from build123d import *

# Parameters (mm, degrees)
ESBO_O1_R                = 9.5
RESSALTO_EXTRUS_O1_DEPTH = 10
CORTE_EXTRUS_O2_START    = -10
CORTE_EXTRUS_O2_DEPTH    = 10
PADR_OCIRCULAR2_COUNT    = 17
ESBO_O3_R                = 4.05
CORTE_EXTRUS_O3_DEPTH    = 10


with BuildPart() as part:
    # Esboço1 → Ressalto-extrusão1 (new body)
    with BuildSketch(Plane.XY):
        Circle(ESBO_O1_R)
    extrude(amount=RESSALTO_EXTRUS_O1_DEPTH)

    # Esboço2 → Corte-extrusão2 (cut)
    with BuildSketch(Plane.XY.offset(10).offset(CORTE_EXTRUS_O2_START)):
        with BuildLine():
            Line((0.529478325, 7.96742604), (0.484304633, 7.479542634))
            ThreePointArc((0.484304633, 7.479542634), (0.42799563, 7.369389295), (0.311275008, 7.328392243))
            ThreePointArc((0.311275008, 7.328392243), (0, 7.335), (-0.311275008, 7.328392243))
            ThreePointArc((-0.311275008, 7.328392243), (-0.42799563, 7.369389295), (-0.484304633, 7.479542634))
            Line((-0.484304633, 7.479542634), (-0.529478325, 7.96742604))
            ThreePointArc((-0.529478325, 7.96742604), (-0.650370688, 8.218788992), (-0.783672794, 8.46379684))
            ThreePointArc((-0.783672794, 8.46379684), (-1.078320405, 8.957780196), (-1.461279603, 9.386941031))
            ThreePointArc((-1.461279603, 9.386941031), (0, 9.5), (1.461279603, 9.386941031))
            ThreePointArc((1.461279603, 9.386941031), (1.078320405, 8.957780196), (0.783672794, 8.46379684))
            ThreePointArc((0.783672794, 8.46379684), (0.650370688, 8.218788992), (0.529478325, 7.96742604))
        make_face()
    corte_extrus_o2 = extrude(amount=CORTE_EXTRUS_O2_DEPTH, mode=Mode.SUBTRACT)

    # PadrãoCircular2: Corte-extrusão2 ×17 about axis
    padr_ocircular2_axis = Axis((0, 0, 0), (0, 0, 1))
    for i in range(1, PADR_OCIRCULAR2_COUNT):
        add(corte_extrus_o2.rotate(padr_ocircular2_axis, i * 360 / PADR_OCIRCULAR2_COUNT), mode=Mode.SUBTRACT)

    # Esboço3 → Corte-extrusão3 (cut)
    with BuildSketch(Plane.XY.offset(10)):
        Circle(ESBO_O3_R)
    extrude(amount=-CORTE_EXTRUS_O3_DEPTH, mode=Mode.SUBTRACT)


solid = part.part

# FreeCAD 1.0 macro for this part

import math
import FreeCAD as App
import Part
import Sketcher

doc = App.newDocument("Part")
body = doc.addObject("PartDesign::Body", "Body")

sketch1 = body.newObject("Sketcher::SketchObject", "Sketch")
sketch1.AttachmentSupport = (doc.getObject("XY_Plane"), [""])
sketch1.MapMode = "FlatFace"
sketch1.addGeometry(Part.Circle(App.Vector(0, 0, 0), App.Vector(0, 0, 1), 10), False)
sketch1.addConstraint(Sketcher.Constraint("Coincident", 0, 3, -1, 1))
sketch1.addConstraint(Sketcher.Constraint("Diameter", 0, 19.0))
pad1 = body.newObject("PartDesign::Pad", "Pad")
pad1.Profile = sketch1
pad1.Length = 10

sketch2 = body.newObject("Sketcher::SketchObject", "Sketch001")
sketch2.AttachmentSupport = (doc.getObject("XY_Plane"), [""])
sketch2.MapMode = "FlatFace"
sketch2.addGeometry(Part.LineSegment(App.Vector(0.484305, 7.479543, 0), App.Vector(0.529478, 7.967426, 0)), False)
sketch2.addGeometry(Part.ArcOfCircle(Part.Circle(App.Vector(5.616992, 5.675352, 0), App.Vector(0, 0, 1), 5.58), math.radians(150.01844), math.radians(155.747043)), False)
sketch2.addGeometry(Part.ArcOfCircle(Part.Circle(App.Vector(3.512865, 7.170774, 0), App.Vector(0, 0, 1), 3.02), math.radians(132.791547), math.radians(154.649585)), False)
sketch2.addGeometry(Part.ArcOfCircle(Part.Circle(App.Vector(0, 0, 0), App.Vector(0, 0, 1), 9.5), math.radians(81.151697), math.radians(98.848303)), False)
sketch2.addGeometry(Part.ArcOfCircle(Part.Circle(App.Vector(-3.512865, 7.170774, 0), App.Vector(0, 0, 1), 3.02), math.radians(25.350415), math.radians(47.208453)), False)
sketch2.addGeometry(Part.ArcOfCircle(Part.Circle(App.Vector(-5.616992, 5.675352, 0), App.Vector(0, 0, 1), 5.58), math.radians(24.252957), math.radians(29.98156)), False)
sketch2.addGeometry(Part.LineSegment(App.Vector(-0.529478, 7.967426, 0), App.Vector(-0.484305, 7.479543, 0)), False)
sketch2.addGeometry(Part.ArcOfCircle(Part.Circle(App.Vector(-0.318348, 7.494909, 0), App.Vector(0, 0, 1), 0.166667), math.radians(-174.709999), math.radians(-87.567813)), False)
sketch2.addGeometry(Part.ArcOfCircle(Part.Circle(App.Vector(0, 0, 0), App.Vector(0, 0, 1), 7.335), math.radians(87.567812), math.radians(92.432188)), False)
sketch2.addGeometry(Part.ArcOfCircle(Part.Circle(App.Vector(0.318348, 7.494909, 0), App.Vector(0, 0, 1), 0.166667), math.radians(-92.432187), math.radians(-5.290001)), False)
sketch2.addConstraint(Sketcher.Constraint("Coincident", 0, 2, 1, 2))
sketch2.addConstraint(Sketcher.Constraint("Coincident", 1, 1, 2, 2))
sketch2.addConstraint(Sketcher.Constraint("Coincident", 2, 1, 3, 1))
sketch2.addConstraint(Sketcher.Constraint("Coincident", 3, 2, 4, 2))
sketch2.addConstraint(Sketcher.Constraint("Coincident", 4, 1, 5, 2))
sketch2.addConstraint(Sketcher.Constraint("Coincident", 5, 1, 6, 1))
sketch2.addConstraint(Sketcher.Constraint("Coincident", 6, 2, 7, 1))
sketch2.addConstraint(Sketcher.Constraint("Coincident", 7, 2, 8, 2))
sketch2.addConstraint(Sketcher.Constraint("Coincident", 8, 1, 9, 1))
sketch2.addConstraint(Sketcher.Constraint("Coincident", 9, 2, 0, 1))
sketch2.addConstraint(Sketcher.Constraint("Coincident", 3, 3, -1, 1))
sketch2.addConstraint(Sketcher.Constraint("Coincident", 8, 3, -1, 1))
sketch2.addConstraint(Sketcher.Constraint("Radius", 3, 9.5))
sketch2.addConstraint(Sketcher.Constraint("Radius", 1, 5.58))
sketch2.addConstraint(Sketcher.Constraint("Radius", 2, 3.02))
sketch2.addConstraint(Sketcher.Constraint("Radius", 4, 3.02))
sketch2.addConstraint(Sketcher.Constraint("Radius", 5, 5.58))
sketch2.addConstraint(Sketcher.Constraint("Radius", 8, 7.335))
sketch2.addConstraint(Sketcher.Constraint("Radius", 7, 0.166667))
sketch2.addConstraint(Sketcher.Constraint("Radius", 9, 0.166667))
sketch2.addConstraint(Sketcher.Constraint("DistanceX", 0, 2, 2, 1, 0.931801))
sketch2.addConstraint(Sketcher.Constraint("Distance", 0, 0.48997))
sketch2.addConstraint(Sketcher.Constraint("Distance", 6, 0.48997))
sketch2.addConstraint(Sketcher.Constraint("DistanceX", -1, 1, 1, 3, 5.616992))
sketch2.addConstraint(Sketcher.Constraint("DistanceX", 5, 3, -1, 1, 5.616992))
sketch2.addConstraint(Sketcher.Constraint("DistanceY", -1, 1, 7, 3, 7.494909))
sketch2.addConstraint(Sketcher.Constraint("DistanceY", -1, 1, 9, 3, 7.494909))
sketch2.addConstraint(Sketcher.Constraint("DistanceX", -1, 1, 0, 2, 0.529478))
sketch2.addConstraint(Sketcher.Constraint("DistanceX", 3, 2, -1, 1, 1.46128))
sketch2.addConstraint(Sketcher.Constraint("DistanceX", 5, 1, -1, 1, 0.529478))
sketch2.addConstraint(Sketcher.Constraint("DistanceY", 1, 3, 2, 3, 1.495422))
sketch2.addConstraint(Sketcher.Constraint("DistanceX", 4, 3, 2, 3, 7.025731))
sketch2.addConstraint(Sketcher.Constraint("DistanceY", 1, 3, 4, 3, 1.495422))
sketch2.addConstraint(Sketcher.Constraint("DistanceY", 5, 3, 4, 3, 1.495422))
sketch2.addConstraint(Sketcher.Constraint("DistanceX", 6, 2, 7, 2, 0.17303))
sketch2.addConstraint(Sketcher.Constraint("DistanceX", 7, 2, 8, 1, 0.62255))
pocket1 = body.newObject("PartDesign::Pocket", "Pocket")
pocket1.Profile = sketch2
pocket1.Length = 10
pocket1.Reversed = True
doc.recompute()

polarpattern = body.newObject("PartDesign::PolarPattern", "PolarPattern")
polarpattern.Originals = [pocket1]
polarpattern.Axis = (doc.getObject("Z_Axis"), [""])
polarpattern.Angle = 360
polarpattern.Occurrences = 17
body.Tip = polarpattern

sketch3 = body.newObject("Sketcher::SketchObject", "Sketch002")
sketch3.AttachmentSupport = (doc.getObject("XY_Plane"), [""])
sketch3.MapMode = "FlatFace"
sketch3.AttachmentOffset = App.Placement(App.Vector(0, 0, 10), App.Rotation())
sketch3.addGeometry(Part.Circle(App.Vector(0, 0, 0), App.Vector(0, 0, 1), 4), False)
sketch3.addConstraint(Sketcher.Constraint("Coincident", 0, 3, -1, 1))
sketch3.addConstraint(Sketcher.Constraint("Diameter", 0, 8.1))
pocket2 = body.newObject("PartDesign::Pocket", "Pocket001")
pocket2.Profile = sketch3
pocket2.Length = 10

doc.recompute()
